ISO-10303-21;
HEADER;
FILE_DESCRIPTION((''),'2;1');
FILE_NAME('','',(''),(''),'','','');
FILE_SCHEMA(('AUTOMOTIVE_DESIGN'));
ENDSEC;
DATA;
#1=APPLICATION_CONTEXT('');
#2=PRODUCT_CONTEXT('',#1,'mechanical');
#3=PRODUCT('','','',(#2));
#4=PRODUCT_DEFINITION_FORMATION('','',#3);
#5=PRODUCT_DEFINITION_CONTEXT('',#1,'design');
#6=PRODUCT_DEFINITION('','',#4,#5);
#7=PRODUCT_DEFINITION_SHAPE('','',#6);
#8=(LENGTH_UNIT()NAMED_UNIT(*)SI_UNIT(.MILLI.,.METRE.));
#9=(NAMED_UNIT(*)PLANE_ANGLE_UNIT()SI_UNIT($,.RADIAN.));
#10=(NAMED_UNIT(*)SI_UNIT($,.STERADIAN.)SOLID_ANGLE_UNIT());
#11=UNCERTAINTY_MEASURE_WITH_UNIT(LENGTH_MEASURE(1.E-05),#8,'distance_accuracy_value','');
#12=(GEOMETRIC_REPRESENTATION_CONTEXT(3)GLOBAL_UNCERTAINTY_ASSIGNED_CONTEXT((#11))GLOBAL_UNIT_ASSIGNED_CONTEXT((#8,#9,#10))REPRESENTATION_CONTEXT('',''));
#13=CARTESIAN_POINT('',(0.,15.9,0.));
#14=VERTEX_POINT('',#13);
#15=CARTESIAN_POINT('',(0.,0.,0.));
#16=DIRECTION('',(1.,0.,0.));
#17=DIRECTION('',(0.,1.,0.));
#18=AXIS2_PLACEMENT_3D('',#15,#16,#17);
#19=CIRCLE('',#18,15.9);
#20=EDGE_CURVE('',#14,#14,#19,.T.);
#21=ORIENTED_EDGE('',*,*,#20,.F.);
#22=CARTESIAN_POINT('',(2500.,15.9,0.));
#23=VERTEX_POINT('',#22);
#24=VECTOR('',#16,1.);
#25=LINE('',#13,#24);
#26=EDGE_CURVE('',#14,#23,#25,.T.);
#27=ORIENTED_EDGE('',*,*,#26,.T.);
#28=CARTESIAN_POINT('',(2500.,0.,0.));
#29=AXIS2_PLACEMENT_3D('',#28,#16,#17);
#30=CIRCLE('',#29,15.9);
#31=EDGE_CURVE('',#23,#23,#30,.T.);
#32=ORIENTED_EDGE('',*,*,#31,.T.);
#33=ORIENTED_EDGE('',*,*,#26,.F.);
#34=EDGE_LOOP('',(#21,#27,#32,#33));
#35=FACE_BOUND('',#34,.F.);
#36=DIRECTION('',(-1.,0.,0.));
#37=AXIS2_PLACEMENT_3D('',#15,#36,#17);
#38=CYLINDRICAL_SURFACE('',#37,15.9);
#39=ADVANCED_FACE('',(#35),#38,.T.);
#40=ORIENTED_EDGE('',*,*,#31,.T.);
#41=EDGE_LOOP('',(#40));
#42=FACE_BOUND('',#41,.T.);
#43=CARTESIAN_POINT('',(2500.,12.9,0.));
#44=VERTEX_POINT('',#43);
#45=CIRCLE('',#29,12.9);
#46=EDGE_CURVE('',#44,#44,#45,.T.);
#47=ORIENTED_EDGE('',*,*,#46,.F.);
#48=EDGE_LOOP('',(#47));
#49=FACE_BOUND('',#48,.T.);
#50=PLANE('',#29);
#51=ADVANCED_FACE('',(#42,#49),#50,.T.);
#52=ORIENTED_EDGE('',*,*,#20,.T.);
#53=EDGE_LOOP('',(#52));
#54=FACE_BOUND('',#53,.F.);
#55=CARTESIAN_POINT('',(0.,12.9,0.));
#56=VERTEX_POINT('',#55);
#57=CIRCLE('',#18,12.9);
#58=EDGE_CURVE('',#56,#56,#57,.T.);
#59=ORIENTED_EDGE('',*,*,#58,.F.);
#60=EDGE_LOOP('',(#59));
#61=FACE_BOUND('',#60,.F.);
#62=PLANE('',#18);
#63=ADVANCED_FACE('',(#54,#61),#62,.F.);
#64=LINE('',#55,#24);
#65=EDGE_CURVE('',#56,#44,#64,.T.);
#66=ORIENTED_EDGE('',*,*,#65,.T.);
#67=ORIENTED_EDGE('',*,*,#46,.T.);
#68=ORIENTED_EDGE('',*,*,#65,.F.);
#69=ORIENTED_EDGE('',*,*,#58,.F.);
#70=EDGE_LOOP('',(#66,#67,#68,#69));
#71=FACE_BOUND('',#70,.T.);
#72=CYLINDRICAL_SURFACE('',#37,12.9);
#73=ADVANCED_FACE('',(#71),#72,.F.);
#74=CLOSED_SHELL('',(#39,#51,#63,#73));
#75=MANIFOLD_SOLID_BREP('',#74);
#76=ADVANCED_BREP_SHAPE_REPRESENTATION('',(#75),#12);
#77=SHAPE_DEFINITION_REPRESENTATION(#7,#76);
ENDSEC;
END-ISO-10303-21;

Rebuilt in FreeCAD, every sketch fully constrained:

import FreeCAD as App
import Part
import Sketcher
from FreeCAD import Vector

doc = App.newDocument("Part")
body = doc.addObject("PartDesign::Body", "Body")

# Sketch on YZ plane
sketch1 = body.newObject("Sketcher::SketchObject", "Sketch")
sketch1.AttachmentSupport = (doc.getObject("YZ_Plane"), [""])
sketch1.MapMode = "FlatFace"
sketch1.addGeometry([
    Part.Circle(Vector(0, 0, 0), Vector(0, 0, 1), 16),
    Part.Circle(Vector(0, 0, 0), Vector(0, 0, 1), 13),
], False)
sketch1.addConstraint([
    Sketcher.Constraint("Coincident", 0, 3, -1, 1),
    Sketcher.Constraint("Coincident", 1, 3, -1, 1),
    Sketcher.Constraint("Diameter", 0, 31.8),
    Sketcher.Constraint("Diameter", 1, 25.8),
])
pad1 = body.newObject("PartDesign::Pad", "Pad")
pad1.Profile = sketch1
pad1.Length = 2500

doc.recompute()
